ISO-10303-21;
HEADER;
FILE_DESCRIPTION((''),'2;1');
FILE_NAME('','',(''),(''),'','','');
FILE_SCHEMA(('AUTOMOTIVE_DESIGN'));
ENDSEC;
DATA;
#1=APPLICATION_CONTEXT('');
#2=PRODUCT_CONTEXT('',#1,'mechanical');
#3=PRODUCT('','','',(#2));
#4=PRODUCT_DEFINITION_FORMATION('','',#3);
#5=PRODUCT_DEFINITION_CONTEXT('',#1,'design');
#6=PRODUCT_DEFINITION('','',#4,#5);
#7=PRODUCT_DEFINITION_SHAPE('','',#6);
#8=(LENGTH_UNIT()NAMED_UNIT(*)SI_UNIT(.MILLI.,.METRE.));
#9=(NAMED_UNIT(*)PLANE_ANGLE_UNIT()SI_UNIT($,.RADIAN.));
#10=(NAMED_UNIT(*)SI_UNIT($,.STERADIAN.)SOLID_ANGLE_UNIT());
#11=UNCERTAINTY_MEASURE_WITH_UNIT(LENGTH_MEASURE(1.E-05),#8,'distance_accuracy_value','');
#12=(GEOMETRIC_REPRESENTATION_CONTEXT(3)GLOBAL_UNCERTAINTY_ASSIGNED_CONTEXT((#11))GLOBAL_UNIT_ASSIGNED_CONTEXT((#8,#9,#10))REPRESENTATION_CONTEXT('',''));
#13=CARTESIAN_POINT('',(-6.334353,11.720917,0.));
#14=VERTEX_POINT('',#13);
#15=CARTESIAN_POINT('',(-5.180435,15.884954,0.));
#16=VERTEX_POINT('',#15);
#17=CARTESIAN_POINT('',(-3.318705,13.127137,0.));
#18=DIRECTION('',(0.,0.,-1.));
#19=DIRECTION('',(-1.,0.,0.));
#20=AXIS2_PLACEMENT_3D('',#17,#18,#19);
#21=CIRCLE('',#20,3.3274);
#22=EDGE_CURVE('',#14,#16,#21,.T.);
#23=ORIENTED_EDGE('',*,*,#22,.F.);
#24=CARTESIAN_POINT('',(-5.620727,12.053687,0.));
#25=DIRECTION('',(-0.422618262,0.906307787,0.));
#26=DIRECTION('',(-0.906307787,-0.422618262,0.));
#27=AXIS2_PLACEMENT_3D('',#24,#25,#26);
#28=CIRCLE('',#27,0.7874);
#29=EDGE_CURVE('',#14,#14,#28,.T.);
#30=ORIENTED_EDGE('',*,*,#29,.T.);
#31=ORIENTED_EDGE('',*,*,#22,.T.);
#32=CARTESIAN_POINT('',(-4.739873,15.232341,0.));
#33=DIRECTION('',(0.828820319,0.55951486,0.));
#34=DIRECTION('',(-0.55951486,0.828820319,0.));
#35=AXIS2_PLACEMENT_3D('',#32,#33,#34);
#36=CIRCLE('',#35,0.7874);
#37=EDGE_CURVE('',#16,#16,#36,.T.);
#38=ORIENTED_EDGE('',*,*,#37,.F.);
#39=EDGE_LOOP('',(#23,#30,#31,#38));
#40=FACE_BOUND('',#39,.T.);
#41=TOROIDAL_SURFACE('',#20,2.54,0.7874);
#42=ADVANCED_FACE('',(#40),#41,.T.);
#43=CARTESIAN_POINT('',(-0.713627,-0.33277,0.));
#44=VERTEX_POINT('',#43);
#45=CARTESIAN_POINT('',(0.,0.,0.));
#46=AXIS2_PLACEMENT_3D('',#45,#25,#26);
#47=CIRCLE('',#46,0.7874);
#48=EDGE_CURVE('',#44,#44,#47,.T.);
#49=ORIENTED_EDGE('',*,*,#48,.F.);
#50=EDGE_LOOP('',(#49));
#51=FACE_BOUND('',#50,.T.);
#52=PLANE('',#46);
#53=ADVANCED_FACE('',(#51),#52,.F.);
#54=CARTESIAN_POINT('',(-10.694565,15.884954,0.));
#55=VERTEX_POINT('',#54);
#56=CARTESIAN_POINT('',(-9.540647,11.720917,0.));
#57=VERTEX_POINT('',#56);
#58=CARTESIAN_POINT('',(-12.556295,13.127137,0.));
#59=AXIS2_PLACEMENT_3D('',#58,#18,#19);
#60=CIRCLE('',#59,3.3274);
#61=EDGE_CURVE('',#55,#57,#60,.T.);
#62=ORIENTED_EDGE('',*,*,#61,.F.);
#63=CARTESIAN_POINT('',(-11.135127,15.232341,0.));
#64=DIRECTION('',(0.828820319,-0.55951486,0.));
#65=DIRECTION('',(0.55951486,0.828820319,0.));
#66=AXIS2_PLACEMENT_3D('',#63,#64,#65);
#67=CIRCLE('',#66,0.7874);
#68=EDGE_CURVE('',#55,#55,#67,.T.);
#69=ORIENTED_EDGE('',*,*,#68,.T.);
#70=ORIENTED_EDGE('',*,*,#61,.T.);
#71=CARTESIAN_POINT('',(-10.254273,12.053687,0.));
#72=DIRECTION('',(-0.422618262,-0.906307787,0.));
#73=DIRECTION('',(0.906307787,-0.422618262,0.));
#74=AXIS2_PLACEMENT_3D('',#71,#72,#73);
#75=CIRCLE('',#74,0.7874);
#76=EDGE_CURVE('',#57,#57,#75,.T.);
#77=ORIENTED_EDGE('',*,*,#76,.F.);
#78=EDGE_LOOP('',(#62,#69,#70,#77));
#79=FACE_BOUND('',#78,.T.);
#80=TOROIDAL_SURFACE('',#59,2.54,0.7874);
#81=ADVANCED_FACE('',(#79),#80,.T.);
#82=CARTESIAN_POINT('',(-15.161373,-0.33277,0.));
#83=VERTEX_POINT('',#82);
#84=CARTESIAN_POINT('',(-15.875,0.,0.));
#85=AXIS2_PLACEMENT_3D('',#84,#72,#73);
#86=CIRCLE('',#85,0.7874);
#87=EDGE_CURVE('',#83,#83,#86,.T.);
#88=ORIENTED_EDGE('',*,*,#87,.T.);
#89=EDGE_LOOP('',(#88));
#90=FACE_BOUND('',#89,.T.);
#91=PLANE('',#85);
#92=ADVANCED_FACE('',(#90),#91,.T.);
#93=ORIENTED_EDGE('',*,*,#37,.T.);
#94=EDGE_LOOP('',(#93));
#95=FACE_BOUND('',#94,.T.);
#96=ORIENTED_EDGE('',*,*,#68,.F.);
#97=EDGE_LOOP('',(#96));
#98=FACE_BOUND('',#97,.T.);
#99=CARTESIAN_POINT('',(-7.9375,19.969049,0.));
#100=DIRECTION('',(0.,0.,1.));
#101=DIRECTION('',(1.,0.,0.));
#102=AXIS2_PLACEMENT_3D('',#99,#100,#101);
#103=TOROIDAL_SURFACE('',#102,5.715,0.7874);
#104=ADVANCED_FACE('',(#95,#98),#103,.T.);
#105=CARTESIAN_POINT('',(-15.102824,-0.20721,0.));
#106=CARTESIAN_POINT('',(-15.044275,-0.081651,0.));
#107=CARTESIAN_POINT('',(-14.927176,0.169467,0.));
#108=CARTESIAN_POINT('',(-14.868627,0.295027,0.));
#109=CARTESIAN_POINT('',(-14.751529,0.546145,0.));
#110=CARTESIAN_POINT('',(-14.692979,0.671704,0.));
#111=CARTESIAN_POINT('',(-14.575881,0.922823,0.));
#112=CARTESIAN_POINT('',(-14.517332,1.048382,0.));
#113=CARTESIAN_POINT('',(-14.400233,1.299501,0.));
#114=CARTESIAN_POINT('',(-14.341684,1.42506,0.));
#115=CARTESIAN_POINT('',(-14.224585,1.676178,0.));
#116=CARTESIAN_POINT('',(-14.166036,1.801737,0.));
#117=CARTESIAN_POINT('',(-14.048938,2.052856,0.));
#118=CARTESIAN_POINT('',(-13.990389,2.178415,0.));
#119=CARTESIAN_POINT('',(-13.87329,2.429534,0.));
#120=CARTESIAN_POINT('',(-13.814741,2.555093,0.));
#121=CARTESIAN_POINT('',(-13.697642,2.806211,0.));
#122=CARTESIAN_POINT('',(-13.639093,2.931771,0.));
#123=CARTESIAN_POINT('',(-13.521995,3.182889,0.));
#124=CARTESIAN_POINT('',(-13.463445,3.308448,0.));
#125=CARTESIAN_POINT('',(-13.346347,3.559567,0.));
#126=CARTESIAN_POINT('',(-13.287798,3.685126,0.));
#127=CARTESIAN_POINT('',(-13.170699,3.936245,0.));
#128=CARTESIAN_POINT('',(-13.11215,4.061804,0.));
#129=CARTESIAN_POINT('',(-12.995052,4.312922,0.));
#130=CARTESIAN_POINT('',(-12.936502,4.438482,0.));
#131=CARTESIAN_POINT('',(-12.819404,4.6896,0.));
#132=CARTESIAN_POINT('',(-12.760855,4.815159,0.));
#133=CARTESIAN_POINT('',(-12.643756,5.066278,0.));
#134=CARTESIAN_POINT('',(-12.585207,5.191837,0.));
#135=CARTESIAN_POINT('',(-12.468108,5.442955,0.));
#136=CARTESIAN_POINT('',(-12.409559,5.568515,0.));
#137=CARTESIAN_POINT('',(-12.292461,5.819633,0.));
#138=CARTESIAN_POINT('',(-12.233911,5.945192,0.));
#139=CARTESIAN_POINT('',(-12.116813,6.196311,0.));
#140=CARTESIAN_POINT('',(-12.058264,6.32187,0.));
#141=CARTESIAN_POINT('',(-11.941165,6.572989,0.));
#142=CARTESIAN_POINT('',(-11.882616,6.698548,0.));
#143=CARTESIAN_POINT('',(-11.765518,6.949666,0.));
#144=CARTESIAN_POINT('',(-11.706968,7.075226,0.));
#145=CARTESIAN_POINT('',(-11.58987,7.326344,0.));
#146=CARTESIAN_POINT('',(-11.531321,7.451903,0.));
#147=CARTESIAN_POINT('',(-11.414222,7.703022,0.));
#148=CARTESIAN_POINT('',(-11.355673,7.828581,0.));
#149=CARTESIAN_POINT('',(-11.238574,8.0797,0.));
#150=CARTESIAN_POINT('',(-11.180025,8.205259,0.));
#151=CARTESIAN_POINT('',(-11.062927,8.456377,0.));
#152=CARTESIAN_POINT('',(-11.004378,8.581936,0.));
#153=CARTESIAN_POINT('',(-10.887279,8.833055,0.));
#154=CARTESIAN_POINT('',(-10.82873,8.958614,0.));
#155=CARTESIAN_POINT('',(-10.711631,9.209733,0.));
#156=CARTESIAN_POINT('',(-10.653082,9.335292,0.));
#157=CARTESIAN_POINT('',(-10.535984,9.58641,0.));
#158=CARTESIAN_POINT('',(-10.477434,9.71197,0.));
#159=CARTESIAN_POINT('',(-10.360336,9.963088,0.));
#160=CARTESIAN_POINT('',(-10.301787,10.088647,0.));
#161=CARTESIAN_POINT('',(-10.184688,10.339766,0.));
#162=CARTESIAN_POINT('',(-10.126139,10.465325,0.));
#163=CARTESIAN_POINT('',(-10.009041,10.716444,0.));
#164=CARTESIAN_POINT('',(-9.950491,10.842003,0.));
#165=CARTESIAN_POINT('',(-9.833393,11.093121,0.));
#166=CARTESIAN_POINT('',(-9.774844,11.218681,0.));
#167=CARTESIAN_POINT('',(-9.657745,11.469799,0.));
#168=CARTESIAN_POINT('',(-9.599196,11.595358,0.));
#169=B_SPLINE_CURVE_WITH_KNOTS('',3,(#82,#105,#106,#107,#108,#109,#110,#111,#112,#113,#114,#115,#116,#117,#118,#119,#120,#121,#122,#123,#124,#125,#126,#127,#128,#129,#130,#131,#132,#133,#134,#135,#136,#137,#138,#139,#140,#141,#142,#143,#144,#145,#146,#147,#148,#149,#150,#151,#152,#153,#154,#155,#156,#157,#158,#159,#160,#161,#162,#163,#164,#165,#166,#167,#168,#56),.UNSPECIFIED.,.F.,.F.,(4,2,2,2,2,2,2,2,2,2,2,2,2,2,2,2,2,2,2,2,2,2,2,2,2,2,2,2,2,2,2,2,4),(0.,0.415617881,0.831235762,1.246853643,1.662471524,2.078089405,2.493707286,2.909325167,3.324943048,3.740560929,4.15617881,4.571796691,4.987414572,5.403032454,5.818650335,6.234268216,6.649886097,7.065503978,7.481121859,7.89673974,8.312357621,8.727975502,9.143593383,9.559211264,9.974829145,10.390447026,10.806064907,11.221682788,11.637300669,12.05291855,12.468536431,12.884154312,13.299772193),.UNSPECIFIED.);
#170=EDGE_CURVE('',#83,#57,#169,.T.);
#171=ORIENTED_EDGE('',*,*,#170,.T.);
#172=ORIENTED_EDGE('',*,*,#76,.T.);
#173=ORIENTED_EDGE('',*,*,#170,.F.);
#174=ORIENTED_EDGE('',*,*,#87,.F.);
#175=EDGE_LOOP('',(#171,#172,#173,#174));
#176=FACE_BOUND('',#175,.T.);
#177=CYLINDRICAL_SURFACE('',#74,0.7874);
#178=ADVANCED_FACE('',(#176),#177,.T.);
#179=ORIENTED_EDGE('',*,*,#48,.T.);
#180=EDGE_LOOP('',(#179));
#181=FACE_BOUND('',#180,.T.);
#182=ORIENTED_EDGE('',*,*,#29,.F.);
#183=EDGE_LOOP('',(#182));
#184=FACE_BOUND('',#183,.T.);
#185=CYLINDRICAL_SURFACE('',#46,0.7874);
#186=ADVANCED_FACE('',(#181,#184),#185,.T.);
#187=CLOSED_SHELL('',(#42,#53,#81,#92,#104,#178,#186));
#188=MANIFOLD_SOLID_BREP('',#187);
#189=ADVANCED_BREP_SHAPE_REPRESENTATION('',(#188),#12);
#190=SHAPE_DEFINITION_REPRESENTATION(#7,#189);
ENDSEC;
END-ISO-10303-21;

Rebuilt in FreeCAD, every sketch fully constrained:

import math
import FreeCAD as App
import Part
import Sketcher
Q = App.Units.Quantity

doc = App.newDocument("Part")
body = doc.addObject("PartDesign::Body", "Body")

sketch1 = body.newObject("Sketcher::SketchObject", "Sketch")
sketch1.Placement = App.Placement(App.Vector(0, 0, 0), App.Rotation(App.Vector(0.906307787, 0.422618262, 0), App.Vector(0, 0, -1), App.Vector(-0.422618262, 0.906307787, 0), "ZXY"))
sketch1.addGeometry(Part.Circle(App.Vector(0, 0, 0), App.Vector(0, 0, 1), 0.8), False)
sketch1.addConstraint(Sketcher.Constraint("Coincident", 0, 3, -1, 1))
sketch1.addConstraint(Sketcher.Constraint("Diameter", 0, Q("0.062 in")))

sketch2 = body.newObject("Sketcher::SketchObject", "Sketch001")
sketch2.AttachmentSupport = (doc.getObject("XY_Plane"), [""])
sketch2.MapMode = "FlatFace"
sketch2.addGeometry(Part.LineSegment(App.Vector(0, 0, 0), App.Vector(-5.6, 12.1, 0)), False)
sketch2.addGeometry(Part.ArcOfCircle(Part.Circle(App.Vector(-3.3, 13.1, 0), App.Vector(0, 0, 1), 2.5), math.radians(124), math.radians(205)), False)
sketch2.addGeometry(Part.ArcOfCircle(Part.Circle(App.Vector(-7.9, 20, 0), App.Vector(0, 0, 1), 5.7), math.radians(-56), math.radians(236)), False)
sketch2.addGeometry(Part.ArcOfCircle(Part.Circle(App.Vector(-12.6, 13.1, 0), App.Vector(0, 0, 1), 2.5), math.radians(-25), math.radians(56)), False)
sketch2.addGeometry(Part.LineSegment(App.Vector(-10.3, 12.1, 0), App.Vector(-15.9, 0, 0)), False)
sketch2.addConstraint(Sketcher.Constraint("Tangent", 0, 2, 1, 2))
sketch2.addConstraint(Sketcher.Constraint("Tangent", 1, 1, 2, 1))
sketch2.addConstraint(Sketcher.Constraint("Tangent", 2, 2, 3, 2))
sketch2.addConstraint(Sketcher.Constraint("Tangent", 3, 1, 4, 1))
sketch2.addConstraint(Sketcher.Constraint("Coincident", 0, 1, -1, 1))
sketch2.addConstraint(Sketcher.Constraint("Equal", 1, 3))
sketch2.addConstraint(Sketcher.Constraint("PointOnObject", 4, 2, -1))
sketch2.addConstraint(Sketcher.Constraint("Horizontal", 1, 3, 3, 3))
sketch2.addConstraint(Sketcher.Constraint("Horizontal", 0, 2, 3, 1))
sketch2.addConstraint(Sketcher.Constraint("Radius", 1, Q("0.1 in")))
sketch2.addConstraint(Sketcher.Constraint("Angle", 0, Q("115 deg")))
sketch2.addConstraint(Sketcher.Constraint("Radius", 2, Q("0.225 in")))
sketch2.addConstraint(Sketcher.Constraint("DistanceX", 2, 3, -1, 1, Q("0.3125 in")))
sketch2.addConstraint(Sketcher.Constraint("DistanceX", 2, 2, 0, 2, 5.514401))
doc.recompute()

additivepipe = body.newObject("PartDesign::AdditivePipe", "AdditivePipe")
additivepipe.Profile = sketch1
additivepipe.Spine = (sketch2, ["Edge1", "Edge2", "Edge3", "Edge4", "Edge5"])

doc.recompute()
